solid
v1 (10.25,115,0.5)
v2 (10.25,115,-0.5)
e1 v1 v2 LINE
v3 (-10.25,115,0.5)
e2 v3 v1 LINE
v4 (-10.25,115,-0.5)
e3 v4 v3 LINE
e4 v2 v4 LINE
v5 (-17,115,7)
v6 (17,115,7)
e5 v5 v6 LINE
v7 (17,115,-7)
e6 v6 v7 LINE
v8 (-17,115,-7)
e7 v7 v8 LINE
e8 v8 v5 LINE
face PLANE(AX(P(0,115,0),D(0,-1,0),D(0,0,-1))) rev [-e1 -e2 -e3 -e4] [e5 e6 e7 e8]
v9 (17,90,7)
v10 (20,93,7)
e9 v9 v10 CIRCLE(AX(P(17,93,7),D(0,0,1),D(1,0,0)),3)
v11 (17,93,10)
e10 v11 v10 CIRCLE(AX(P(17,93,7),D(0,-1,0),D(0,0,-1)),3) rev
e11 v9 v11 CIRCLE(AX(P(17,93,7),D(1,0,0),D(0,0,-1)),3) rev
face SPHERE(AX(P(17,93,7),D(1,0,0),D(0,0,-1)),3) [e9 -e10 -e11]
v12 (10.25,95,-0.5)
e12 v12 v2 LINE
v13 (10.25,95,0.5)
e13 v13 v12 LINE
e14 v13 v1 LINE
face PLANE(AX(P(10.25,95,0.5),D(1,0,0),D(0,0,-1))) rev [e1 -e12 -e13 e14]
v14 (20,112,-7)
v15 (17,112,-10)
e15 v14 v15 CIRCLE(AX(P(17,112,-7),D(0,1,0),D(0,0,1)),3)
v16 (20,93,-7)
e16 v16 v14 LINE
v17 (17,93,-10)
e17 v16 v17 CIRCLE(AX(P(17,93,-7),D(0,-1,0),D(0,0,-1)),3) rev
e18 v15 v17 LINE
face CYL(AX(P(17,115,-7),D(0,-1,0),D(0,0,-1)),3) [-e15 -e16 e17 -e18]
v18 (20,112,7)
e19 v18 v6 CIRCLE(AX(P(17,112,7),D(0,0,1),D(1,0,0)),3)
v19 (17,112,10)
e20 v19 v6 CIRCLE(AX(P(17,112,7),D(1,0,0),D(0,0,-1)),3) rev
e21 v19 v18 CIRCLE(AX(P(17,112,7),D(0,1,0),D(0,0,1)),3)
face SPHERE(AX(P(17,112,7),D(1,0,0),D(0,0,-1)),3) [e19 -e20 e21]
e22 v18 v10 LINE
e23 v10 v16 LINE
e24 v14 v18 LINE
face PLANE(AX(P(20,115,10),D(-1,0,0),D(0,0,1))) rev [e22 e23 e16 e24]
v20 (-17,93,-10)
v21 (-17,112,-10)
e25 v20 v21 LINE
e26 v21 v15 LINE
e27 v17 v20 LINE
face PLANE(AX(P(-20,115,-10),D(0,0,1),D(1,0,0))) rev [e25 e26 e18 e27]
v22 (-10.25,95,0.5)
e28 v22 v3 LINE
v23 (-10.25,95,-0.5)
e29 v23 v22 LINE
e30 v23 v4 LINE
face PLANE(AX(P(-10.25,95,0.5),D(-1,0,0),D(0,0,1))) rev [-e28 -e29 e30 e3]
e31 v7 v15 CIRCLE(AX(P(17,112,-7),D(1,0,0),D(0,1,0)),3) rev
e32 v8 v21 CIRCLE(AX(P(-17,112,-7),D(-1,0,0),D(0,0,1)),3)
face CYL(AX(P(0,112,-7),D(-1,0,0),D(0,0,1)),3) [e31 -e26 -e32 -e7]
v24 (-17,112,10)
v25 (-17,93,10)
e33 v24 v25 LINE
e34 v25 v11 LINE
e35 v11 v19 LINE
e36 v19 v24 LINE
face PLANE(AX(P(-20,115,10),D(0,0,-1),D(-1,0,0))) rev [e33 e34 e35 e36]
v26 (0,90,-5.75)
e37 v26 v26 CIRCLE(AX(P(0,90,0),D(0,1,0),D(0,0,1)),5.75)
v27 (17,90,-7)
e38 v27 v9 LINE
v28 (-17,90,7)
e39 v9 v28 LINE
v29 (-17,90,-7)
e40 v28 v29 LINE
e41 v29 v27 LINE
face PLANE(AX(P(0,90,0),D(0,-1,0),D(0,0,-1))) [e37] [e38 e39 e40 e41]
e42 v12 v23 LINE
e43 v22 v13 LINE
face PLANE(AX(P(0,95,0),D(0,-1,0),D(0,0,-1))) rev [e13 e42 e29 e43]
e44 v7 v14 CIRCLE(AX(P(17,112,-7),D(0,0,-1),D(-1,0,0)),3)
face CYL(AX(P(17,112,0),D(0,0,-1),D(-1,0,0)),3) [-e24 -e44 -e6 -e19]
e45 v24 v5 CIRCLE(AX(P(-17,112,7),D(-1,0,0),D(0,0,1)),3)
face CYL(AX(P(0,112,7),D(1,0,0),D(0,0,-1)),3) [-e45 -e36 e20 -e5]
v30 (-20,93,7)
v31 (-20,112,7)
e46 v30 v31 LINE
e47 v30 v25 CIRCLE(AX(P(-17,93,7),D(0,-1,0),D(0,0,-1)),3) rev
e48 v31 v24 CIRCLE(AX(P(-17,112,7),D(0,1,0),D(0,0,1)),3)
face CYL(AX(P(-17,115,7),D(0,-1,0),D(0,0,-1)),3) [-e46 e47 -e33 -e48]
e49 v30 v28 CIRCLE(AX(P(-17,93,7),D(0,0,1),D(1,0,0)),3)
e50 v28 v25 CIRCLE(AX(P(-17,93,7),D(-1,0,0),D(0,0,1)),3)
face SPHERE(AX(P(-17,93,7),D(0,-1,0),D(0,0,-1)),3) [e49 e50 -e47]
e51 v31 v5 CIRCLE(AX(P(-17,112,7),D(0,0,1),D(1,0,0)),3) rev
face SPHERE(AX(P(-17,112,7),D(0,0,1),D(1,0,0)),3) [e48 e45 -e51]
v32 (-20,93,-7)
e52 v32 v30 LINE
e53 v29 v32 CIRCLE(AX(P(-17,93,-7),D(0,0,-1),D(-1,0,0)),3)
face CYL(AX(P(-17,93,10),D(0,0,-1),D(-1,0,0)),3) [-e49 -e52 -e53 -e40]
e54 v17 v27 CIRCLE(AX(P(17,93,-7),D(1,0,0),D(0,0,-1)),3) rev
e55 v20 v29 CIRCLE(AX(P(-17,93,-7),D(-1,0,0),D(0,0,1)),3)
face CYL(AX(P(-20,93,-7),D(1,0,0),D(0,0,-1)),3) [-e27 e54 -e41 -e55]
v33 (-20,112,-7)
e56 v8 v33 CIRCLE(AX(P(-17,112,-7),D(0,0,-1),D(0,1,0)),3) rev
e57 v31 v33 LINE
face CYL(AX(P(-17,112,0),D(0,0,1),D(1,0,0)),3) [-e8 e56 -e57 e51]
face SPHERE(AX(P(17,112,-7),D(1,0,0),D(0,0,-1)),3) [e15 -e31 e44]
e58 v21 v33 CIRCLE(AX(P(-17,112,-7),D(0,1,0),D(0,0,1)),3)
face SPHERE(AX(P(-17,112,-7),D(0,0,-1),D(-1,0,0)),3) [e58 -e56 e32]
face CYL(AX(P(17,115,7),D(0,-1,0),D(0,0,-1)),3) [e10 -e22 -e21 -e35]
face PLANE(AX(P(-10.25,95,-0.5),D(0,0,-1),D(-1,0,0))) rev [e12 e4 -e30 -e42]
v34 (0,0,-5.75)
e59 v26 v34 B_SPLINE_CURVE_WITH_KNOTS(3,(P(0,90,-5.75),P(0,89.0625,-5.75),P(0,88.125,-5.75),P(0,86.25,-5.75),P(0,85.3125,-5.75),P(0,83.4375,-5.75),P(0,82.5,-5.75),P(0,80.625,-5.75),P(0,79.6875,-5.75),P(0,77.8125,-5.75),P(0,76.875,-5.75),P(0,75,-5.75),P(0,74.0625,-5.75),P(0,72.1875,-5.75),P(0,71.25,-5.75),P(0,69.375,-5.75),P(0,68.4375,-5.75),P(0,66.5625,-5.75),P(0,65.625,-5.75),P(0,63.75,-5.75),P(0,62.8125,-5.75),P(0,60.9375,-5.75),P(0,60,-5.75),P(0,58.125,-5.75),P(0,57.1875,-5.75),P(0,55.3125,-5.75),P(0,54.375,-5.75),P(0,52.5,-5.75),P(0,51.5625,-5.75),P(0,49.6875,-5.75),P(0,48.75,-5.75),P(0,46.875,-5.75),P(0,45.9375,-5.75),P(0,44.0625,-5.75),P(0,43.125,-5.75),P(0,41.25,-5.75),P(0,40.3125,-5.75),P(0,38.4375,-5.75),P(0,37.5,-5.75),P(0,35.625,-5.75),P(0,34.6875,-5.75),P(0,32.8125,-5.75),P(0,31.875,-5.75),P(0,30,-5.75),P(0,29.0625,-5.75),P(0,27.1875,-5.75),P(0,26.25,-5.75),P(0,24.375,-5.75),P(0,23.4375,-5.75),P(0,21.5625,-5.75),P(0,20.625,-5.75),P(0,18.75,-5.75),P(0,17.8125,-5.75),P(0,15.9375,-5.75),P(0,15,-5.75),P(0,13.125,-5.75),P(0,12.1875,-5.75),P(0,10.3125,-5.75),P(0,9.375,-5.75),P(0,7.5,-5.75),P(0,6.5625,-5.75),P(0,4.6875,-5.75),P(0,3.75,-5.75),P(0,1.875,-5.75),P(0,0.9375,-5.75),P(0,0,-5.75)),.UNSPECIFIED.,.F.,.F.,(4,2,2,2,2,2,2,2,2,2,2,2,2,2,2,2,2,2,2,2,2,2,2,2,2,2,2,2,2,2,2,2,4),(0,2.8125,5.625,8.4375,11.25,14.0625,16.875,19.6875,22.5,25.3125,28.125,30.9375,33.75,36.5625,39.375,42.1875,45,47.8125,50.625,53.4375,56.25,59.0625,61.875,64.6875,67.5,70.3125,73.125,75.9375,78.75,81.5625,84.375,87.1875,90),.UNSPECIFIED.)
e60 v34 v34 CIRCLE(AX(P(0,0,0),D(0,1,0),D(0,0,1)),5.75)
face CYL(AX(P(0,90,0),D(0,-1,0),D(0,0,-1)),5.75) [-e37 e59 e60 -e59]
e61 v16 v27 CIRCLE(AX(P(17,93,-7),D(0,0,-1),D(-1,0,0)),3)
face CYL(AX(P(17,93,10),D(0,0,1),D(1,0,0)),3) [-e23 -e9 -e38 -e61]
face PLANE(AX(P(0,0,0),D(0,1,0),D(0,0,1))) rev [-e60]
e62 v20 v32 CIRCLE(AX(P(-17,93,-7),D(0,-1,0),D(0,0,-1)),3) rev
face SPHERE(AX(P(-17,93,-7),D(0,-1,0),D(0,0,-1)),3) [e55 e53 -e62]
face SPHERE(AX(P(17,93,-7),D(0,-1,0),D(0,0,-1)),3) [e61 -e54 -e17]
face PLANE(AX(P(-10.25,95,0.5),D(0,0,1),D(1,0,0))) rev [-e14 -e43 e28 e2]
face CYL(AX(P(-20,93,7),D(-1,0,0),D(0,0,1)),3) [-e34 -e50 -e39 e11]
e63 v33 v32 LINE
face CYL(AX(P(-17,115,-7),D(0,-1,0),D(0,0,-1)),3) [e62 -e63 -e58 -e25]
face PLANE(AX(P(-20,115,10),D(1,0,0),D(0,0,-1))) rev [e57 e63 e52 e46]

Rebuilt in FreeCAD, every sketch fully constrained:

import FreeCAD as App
import Part
import Sketcher

V = App.Vector


def edges_at(feature, points):
    """Names of the edges that pass closest to the given points."""
    edges = feature.Shape.Edges
    near = lambda p: min(range(len(edges)), key=lambda i: edges[i].distToShape(Part.Vertex(*p))[0])
    return sorted({f"Edge{near(p) + 1}" for p in points})


def add_polygon(sketch, points):
    """Adds a closed chain of lines whose ends are joined by coincident constraints."""
    first, n = sketch.GeometryCount, len(points)
    for a, b in zip(points, points[1:] + points[:1]):
        sketch.addGeometry(Part.LineSegment(App.Vector(*a, 0), App.Vector(*b, 0)), False)
    for i in range(n):
        sketch.addConstraint(Sketcher.Constraint("Coincident", first + i, 2, first + (i + 1) % n, 1))

doc = App.newDocument("Part")
body = doc.addObject("PartDesign::Body", "Body")

# Sketch on XZ plane
sketch1 = body.newObject("Sketcher::SketchObject", "Sketch")
sketch1.AttachmentSupport = (doc.getObject("XZ_Plane"), [""])
sketch1.MapMode = "FlatFace"
sketch1.addGeometry(Part.Circle(V(0, 0, 0), V(0, 0, 1), 6), False)
sketch1.addConstraint(Sketcher.Constraint("Coincident", 0, 3, -1, 1))
sketch1.addConstraint(Sketcher.Constraint("Diameter", 0, 11.5))
pad1 = body.newObject("PartDesign::Pad", "Pad")
pad1.Profile = sketch1
pad1.Length = 90
pad1.Reversed = True

# Sketch on XZ plane
sketch2 = body.newObject("Sketcher::SketchObject", "Sketch001")
sketch2.AttachmentSupport = (doc.getObject("XZ_Plane"), [""])
sketch2.MapMode = "FlatFace"
sketch2.AttachmentOffset = App.Placement(V(0, 0, -90), App.Rotation())
add_polygon(sketch2, [(-20, -10), (-20, 10), (20, 10), (20, -10)])  # lines 0-3
sketch2.addConstraint(Sketcher.Constraint("Vertical", 0))
sketch2.addConstraint(Sketcher.Constraint("Horizontal", 1))
sketch2.addConstraint(Sketcher.Constraint("Vertical", 2))
sketch2.addConstraint(Sketcher.Constraint("Horizontal", 3))
sketch2.addConstraint(Sketcher.Constraint("Symmetric", 0, 2, 2, 2, -1, 1))
sketch2.addConstraint(Sketcher.Constraint("DistanceX", 1, 1, 1, 2, 40.0))
sketch2.addConstraint(Sketcher.Constraint("DistanceY", 0, 1, 0, 2, 20.0))
pad2 = body.newObject("PartDesign::Pad", "Pad001")
pad2.Profile = sketch2
pad2.Length = 25
pad2.Reversed = True

# Sketch on XZ plane
sketch3 = body.newObject("Sketcher::SketchObject", "Sketch002")
sketch3.AttachmentSupport = (doc.getObject("XZ_Plane"), [""])
sketch3.MapMode = "FlatFace"
sketch3.AttachmentOffset = App.Placement(V(0, 0, -115), App.Rotation())
add_polygon(sketch3, [(-10.2, -0.5), (-10.2, 0.5), (10.2, 0.5), (10.2, -0.5)])  # lines 0-3
sketch3.addConstraint(Sketcher.Constraint("Vertical", 0))
sketch3.addConstraint(Sketcher.Constraint("Horizontal", 1))
sketch3.addConstraint(Sketcher.Constraint("Vertical", 2))
sketch3.addConstraint(Sketcher.Constraint("Horizontal", 3))
sketch3.addConstraint(Sketcher.Constraint("Symmetric", 0, 2, 2, 2, -1, 1))
sketch3.addConstraint(Sketcher.Constraint("DistanceY", 0, 1, 0, 2, 1.0))
sketch3.addConstraint(Sketcher.Constraint("DistanceX", 1, 1, 1, 2, 20.5))
pocket1 = body.newObject("PartDesign::Pocket", "Pocket")
pocket1.Profile = sketch3
pocket1.Length = 20
pocket1.Reversed = True
doc.recompute()

fillet = body.newObject("PartDesign::Fillet", "Fillet")
fillet.Base = (pocket1, edges_at(pocket1, [
    (20, 90, 0),
    (20, 102.5, 10),
    (0, 90, -10),
    (20, 102.5, -10),
    (-20, 90, 0),
    (-20, 102.5, -10),
    (0, 90, 10),
    (-20, 102.5, 10),
    (20, 115, 0),
    (0, 115, -10),
    (-20, 115, 0),
    (0, 115, 10),
]))
fillet.Radius = 3

doc.recompute()
